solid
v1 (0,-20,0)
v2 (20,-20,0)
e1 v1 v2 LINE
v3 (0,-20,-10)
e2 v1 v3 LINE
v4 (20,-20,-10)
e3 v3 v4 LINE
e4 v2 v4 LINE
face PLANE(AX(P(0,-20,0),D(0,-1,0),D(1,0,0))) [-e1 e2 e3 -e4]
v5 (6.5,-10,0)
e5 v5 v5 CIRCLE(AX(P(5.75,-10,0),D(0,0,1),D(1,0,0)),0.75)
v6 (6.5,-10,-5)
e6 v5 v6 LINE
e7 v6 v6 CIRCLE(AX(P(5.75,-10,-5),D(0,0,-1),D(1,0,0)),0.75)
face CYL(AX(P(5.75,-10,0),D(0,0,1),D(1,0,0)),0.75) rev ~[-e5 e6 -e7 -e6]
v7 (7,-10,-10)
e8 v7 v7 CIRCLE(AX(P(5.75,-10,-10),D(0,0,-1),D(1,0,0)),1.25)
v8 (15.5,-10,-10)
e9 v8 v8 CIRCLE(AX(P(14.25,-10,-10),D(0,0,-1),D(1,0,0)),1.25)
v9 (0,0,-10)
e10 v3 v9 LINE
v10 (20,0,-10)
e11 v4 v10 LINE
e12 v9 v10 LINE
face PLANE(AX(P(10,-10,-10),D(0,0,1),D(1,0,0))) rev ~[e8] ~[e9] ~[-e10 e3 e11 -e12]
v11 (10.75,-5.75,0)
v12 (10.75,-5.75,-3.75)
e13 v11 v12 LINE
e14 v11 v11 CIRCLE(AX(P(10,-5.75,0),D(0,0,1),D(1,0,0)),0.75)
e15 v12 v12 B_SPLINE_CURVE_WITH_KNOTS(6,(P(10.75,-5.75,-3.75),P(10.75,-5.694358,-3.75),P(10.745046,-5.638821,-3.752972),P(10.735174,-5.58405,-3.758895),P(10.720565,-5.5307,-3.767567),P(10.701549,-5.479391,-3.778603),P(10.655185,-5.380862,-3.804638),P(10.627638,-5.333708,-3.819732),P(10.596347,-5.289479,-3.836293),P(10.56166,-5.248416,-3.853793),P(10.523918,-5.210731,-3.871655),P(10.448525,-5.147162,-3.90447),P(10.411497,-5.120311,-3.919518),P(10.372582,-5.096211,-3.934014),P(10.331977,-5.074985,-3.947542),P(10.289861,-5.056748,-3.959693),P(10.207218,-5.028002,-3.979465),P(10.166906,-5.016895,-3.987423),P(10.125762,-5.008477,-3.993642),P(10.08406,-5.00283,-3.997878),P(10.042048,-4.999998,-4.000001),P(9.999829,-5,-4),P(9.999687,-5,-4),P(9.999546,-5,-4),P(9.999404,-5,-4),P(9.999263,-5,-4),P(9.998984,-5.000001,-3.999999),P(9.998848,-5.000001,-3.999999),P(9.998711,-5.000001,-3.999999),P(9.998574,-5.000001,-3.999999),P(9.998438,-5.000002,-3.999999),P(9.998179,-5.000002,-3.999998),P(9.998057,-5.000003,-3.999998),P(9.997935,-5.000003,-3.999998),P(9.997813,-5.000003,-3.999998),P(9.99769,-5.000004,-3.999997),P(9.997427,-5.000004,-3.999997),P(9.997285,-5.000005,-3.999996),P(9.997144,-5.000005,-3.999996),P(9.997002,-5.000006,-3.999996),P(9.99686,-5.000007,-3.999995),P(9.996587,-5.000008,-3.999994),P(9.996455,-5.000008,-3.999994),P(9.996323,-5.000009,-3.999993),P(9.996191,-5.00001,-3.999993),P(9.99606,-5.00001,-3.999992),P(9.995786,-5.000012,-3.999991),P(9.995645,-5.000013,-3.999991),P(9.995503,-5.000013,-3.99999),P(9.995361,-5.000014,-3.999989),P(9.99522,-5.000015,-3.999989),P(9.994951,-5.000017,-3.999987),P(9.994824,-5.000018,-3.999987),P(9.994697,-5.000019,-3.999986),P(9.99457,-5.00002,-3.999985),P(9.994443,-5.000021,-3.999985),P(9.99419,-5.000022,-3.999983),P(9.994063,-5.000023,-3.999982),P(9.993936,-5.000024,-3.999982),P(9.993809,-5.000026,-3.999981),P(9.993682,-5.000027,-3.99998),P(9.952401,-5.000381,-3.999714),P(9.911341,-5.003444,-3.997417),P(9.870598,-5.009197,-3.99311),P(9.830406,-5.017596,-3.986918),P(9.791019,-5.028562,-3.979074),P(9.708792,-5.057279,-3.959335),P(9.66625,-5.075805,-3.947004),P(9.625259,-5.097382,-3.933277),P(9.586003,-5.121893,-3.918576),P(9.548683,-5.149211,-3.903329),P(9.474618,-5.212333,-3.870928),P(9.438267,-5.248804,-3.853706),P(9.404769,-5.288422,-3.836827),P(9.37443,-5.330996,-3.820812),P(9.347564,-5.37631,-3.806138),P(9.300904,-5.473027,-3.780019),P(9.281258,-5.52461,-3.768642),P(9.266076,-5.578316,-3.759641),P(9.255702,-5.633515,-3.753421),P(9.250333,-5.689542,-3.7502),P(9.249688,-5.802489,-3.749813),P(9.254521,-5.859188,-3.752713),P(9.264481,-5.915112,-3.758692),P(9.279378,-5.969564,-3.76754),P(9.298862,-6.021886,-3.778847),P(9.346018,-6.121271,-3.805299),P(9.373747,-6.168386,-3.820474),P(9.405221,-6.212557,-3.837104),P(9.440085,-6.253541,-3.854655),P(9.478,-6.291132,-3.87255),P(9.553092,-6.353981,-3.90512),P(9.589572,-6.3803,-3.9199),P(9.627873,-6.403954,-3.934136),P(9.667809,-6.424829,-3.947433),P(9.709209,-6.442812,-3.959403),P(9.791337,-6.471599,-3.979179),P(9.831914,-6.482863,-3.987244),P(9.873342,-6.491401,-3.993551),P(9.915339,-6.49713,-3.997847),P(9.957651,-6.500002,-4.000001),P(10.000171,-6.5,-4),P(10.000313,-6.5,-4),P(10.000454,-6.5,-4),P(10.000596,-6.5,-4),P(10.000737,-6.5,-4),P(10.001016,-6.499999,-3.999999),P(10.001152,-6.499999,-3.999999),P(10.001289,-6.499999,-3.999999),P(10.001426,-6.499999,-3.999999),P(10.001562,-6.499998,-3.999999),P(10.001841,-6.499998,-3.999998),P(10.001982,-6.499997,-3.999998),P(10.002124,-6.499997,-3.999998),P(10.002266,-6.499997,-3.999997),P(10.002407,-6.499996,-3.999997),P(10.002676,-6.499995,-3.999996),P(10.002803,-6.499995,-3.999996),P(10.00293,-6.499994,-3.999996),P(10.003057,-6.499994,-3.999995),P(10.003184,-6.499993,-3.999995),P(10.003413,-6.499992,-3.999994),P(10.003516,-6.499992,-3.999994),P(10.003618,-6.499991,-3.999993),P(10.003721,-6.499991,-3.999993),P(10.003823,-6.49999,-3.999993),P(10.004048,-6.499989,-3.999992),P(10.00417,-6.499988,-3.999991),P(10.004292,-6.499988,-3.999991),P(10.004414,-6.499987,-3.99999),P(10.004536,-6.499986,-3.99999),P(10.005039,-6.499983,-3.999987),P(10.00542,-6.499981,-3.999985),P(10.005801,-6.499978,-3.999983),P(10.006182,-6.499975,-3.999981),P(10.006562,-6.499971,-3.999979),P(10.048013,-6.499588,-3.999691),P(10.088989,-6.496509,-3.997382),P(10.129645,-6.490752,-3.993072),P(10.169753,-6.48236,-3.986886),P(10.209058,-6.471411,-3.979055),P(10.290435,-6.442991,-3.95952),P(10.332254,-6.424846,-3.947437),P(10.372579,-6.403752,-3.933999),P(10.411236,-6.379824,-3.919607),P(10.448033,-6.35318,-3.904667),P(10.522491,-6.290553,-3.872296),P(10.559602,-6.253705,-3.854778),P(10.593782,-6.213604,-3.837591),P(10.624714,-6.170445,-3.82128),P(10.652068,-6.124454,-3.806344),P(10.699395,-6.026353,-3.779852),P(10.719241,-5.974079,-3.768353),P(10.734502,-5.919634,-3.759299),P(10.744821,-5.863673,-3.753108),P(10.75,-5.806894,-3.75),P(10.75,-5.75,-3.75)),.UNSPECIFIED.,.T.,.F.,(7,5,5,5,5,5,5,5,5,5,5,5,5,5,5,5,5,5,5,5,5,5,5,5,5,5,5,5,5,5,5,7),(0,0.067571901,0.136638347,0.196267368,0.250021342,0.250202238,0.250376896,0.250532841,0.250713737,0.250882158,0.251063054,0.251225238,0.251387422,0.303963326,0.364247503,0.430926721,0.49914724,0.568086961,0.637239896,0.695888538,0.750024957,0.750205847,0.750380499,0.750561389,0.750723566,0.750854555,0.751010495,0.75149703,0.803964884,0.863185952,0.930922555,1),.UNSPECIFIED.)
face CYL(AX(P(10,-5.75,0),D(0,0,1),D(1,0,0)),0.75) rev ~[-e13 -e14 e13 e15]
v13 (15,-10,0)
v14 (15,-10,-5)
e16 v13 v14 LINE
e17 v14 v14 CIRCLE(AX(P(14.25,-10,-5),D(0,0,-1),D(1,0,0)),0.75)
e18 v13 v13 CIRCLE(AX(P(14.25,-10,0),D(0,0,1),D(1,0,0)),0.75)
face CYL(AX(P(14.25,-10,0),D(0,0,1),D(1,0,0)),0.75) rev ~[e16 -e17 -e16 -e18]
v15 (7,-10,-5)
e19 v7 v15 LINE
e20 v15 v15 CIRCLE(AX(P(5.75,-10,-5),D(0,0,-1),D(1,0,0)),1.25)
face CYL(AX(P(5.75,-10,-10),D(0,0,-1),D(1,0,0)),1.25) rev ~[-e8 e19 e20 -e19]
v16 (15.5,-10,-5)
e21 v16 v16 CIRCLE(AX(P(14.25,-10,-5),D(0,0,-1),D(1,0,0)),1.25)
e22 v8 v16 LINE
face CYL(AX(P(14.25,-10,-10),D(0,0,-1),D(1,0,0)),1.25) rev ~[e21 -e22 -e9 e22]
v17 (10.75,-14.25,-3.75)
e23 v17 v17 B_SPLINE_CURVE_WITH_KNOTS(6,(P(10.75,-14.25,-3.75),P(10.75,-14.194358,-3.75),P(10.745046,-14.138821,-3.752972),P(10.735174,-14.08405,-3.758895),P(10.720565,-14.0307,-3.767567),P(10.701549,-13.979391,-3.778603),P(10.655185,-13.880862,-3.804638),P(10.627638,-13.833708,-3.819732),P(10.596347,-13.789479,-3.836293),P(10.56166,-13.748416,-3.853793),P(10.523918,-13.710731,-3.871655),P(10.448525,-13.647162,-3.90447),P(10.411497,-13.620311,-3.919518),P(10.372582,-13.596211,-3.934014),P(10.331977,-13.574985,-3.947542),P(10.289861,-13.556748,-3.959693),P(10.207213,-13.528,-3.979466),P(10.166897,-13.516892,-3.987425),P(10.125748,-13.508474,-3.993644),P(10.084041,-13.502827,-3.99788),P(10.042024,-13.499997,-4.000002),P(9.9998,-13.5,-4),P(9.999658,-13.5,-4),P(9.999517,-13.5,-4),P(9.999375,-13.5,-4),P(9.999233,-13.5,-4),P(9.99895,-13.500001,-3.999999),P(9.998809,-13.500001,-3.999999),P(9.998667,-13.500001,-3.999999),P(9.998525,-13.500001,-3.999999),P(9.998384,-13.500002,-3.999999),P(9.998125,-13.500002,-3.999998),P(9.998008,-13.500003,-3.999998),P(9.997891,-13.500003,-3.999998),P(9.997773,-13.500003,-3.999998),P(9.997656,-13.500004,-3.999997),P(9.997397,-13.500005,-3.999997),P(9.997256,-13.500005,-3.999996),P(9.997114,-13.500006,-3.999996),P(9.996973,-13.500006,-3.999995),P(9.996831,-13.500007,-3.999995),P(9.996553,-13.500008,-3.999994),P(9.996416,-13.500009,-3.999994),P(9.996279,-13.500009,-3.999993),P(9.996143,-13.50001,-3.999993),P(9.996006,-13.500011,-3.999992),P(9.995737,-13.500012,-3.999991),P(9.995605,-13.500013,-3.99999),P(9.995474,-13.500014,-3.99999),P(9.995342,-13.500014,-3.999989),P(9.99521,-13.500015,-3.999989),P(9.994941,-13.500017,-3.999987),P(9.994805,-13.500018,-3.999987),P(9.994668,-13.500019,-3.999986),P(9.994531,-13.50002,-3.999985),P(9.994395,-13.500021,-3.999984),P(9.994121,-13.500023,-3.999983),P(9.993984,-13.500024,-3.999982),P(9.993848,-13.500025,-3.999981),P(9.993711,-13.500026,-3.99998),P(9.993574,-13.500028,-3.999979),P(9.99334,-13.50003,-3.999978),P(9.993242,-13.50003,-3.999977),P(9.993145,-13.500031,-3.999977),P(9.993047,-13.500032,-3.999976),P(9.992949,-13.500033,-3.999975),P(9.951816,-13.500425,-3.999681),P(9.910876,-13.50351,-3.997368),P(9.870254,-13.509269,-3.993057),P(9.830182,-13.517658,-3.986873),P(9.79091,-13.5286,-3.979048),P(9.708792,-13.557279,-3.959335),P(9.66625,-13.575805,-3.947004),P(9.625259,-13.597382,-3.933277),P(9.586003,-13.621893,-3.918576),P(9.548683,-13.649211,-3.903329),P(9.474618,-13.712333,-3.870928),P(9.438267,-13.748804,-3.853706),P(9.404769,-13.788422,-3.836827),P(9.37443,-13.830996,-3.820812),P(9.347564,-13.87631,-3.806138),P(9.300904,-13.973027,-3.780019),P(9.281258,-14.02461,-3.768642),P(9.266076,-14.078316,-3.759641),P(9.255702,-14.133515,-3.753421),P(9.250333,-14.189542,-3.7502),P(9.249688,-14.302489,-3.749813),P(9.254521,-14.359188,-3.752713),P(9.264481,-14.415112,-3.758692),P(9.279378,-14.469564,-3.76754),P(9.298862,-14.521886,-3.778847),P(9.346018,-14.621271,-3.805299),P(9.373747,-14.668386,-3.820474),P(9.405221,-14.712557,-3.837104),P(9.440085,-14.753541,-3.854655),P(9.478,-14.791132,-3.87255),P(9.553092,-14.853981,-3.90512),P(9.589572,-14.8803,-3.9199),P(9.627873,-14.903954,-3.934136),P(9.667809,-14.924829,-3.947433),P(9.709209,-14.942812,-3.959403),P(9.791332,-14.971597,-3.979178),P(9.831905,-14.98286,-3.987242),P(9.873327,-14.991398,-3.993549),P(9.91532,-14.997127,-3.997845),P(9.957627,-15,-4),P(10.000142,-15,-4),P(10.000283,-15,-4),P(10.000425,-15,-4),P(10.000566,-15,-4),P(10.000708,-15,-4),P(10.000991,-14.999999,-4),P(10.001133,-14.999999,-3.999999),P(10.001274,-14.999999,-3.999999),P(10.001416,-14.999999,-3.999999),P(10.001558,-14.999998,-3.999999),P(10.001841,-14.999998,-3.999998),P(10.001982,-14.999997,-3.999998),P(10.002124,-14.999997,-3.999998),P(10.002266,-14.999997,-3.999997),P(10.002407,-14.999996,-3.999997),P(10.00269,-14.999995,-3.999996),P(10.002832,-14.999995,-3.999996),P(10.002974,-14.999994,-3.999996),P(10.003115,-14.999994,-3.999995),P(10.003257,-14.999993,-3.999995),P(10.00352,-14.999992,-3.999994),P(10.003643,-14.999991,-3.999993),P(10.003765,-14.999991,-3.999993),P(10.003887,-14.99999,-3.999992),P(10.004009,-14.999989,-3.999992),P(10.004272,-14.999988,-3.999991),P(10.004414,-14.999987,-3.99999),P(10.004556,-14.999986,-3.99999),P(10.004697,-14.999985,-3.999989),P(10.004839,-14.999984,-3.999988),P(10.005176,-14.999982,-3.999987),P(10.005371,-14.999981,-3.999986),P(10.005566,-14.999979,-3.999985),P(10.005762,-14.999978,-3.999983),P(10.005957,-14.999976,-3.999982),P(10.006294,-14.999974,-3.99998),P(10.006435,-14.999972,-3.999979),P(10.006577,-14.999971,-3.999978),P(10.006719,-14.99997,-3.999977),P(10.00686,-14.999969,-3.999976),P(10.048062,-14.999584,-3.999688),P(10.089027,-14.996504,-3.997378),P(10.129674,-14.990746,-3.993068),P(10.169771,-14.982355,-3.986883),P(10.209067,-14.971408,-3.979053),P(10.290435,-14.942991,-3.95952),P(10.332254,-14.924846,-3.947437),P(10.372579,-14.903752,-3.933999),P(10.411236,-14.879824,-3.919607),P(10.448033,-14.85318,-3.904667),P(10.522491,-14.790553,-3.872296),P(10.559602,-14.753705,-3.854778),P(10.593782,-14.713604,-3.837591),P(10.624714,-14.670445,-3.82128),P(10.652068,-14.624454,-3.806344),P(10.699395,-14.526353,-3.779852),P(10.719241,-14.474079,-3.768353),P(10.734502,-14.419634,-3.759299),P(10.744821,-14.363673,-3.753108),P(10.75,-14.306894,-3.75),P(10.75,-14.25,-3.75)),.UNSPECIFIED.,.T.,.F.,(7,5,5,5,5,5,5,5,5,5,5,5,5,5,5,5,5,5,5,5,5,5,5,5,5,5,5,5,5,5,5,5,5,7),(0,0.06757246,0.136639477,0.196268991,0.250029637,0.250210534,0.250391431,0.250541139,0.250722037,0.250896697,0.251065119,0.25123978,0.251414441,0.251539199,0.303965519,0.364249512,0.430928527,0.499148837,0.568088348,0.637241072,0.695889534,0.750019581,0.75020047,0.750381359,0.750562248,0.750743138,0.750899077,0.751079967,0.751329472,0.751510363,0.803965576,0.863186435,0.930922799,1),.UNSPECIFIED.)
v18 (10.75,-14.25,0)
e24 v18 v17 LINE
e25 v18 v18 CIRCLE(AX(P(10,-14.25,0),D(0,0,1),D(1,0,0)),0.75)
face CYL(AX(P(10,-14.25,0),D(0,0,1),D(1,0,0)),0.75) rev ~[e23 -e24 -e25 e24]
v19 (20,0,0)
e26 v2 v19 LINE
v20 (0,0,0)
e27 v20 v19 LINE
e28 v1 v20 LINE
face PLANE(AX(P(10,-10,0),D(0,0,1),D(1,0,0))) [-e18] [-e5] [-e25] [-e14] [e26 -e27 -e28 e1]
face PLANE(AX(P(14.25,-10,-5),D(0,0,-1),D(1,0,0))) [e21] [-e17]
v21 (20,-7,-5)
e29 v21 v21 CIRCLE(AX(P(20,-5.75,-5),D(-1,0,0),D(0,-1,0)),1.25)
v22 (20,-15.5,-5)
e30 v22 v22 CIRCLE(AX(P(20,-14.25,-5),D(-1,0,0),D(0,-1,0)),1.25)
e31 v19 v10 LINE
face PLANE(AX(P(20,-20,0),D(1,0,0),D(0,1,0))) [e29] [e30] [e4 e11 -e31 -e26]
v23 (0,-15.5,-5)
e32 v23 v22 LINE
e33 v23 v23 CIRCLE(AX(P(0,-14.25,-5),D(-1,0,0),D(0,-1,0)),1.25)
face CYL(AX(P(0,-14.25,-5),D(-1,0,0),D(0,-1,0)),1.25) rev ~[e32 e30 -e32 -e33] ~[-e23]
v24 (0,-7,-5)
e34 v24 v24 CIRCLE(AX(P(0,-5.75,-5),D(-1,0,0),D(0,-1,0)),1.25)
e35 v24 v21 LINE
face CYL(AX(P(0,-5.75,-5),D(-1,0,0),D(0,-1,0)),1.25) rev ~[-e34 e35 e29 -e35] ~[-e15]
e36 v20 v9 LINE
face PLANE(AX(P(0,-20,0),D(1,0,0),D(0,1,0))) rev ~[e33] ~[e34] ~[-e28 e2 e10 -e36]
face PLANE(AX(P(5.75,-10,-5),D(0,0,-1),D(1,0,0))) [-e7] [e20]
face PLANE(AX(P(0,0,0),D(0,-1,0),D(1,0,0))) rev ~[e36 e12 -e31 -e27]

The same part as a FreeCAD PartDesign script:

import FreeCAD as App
import Part
import Sketcher
from FreeCAD import Vector


def add_polygon(sketch, points):
    """Adds a closed chain of lines whose ends are joined by coincident constraints."""
    first, n = sketch.GeometryCount, len(points)
    for a, b in zip(points, points[1:] + points[:1]):
        sketch.addGeometry(Part.LineSegment(App.Vector(*a, 0), App.Vector(*b, 0)), False)
    for i in range(n):
        sketch.addConstraint(Sketcher.Constraint("Coincident", first + i, 2, first + (i + 1) % n, 1))

doc = App.newDocument("Part")
body = doc.addObject("PartDesign::Body", "Body")

# Sketch on XY plane
sketch1 = doc.addObject("Sketcher::SketchObject", "Sketch")
body.addObject(sketch1)
sketch1.AttachmentSupport = (doc.XY_Plane, [""])
sketch1.MapMode = "FlatFace"
add_polygon(sketch1, [(0, 0), (0, -20), (20, -20), (20, 0)])  # lines 0-3
sketch1.addGeometry(Part.Circle(Vector(5.8, -10, 0), Vector(0, 0, 1), 0.8), False)  # 4
sketch1.addGeometry(Part.Circle(Vector(14.2, -10, 0), Vector(0, 0, 1), 0.8), False)  # 5
sketch1.addConstraint([
    Sketcher.Constraint("Vertical", 0),
    Sketcher.Constraint("Horizontal", 1),
    Sketcher.Constraint("Vertical", 2),
    Sketcher.Constraint("Horizontal", 3),
    Sketcher.Constraint("Coincident", 3, 2, -1, 1),
    Sketcher.Constraint("Equal", 4, 5),
    Sketcher.Constraint("Horizontal", 4, 3, 5, 3),
    Sketcher.Constraint("Equal", 3, 0),
    Sketcher.Constraint("Diameter", 4, 1.5),
    Sketcher.Constraint("DistanceX", 1, 1, 1, 2, 20.0),
    Sketcher.Constraint("DistanceY", 4, 3, -1, 1, 10.0),
    Sketcher.Constraint("DistanceX", 4, 3, 5, 3, 8.5),
    Sketcher.Constraint("DistanceX", -1, 1, 4, 3, 5.75),
])
pad1 = doc.addObject("PartDesign::Pad", "Pad")
body.addObject(pad1)
pad1.Profile = sketch1
pad1.Length = 10
pad1.Reversed = True

# Sketch on YZ plane
sketch2 = doc.addObject("Sketcher::SketchObject", "Sketch001")
body.addObject(sketch2)
sketch2.AttachmentSupport = (doc.YZ_Plane, [""])
sketch2.MapMode = "FlatFace"
sketch2.addGeometry([
    Part.Circle(Vector(-5.8, -5, 0), Vector(0, 0, 1), 1.2),
    Part.Circle(Vector(-14.2, -5, 0), Vector(0, 0, 1), 1.2),
], False)
sketch2.addConstraint([
    Sketcher.Constraint("Equal", 0, 1),
    Sketcher.Constraint("Horizontal", 0, 3, 1, 3),
    Sketcher.Constraint("Diameter", 0, 2.5),
    Sketcher.Constraint("DistanceY", 0, 3, -1, 1, 5.0),
    Sketcher.Constraint("DistanceX", 1, 3, 0, 3, 8.5),
    Sketcher.Constraint("DistanceX", 0, 3, -1, 1, 5.75),
])
pocket1 = doc.addObject("PartDesign::Pocket", "Pocket")
body.addObject(pocket1)
pocket1.Profile = sketch2
pocket1.Length = 25
pocket1.Reversed = True

# Sketch on XY plane
sketch3 = doc.addObject("Sketcher::SketchObject", "Sketch002")
body.addObject(sketch3)
sketch3.AttachmentSupport = (doc.XY_Plane, [""])
sketch3.MapMode = "FlatFace"
sketch3.addGeometry([
    Part.Circle(Vector(10, -5.8, 0), Vector(0, 0, 1), 0.8),
    Part.Circle(Vector(10, -14.2, 0), Vector(0, 0, 1), 0.8),
], False)
sketch3.addConstraint([
    Sketcher.Constraint("Equal", 0, 1),
    Sketcher.Constraint("Vertical", 0, 3, 1, 3),
    Sketcher.Constraint("Diameter", 0, 1.5),
    Sketcher.Constraint("DistanceX", -1, 1, 0, 3, 10.0),
    Sketcher.Constraint("DistanceY", 1, 3, 0, 3, 8.5),
    Sketcher.Constraint("DistanceY", 0, 3, -1, 1, 5.75),
])
pocket2 = doc.addObject("PartDesign::Pocket", "Pocket001")
body.addObject(pocket2)
pocket2.Profile = sketch3
pocket2.Length = 6

# Sketch on XY plane
sketch4 = doc.addObject("Sketcher::SketchObject", "Sketch003")
body.addObject(sketch4)
sketch4.AttachmentSupport = (doc.XY_Plane, [""])
sketch4.MapMode = "FlatFace"
sketch4.AttachmentOffset = App.Placement(Vector(0, 0, -10), App.Rotation())
sketch4.addGeometry([
    Part.Circle(Vector(5.8, -10, 0), Vector(0, 0, 1), 1.2),
    Part.Circle(Vector(5.8, -10, 0), Vector(0, 0, 1), 0.8),
    Part.Circle(Vector(14.2, -10, 0), Vector(0, 0, 1), 1.2),
    Part.Circle(Vector(14.2, -10, 0), Vector(0, 0, 1), 0.8),
], False)
sketch4.addConstraint([
    Sketcher.Constraint("Coincident", 1, 3, 0, 3),
    Sketcher.Constraint("Coincident", 3, 3, 2, 3),
    Sketcher.Constraint("Equal", 0, 2),
    Sketcher.Constraint("Equal", 1, 3),
    Sketcher.Constraint("Horizontal", 1, 3, 2, 3),
    Sketcher.Constraint("Diameter", 0, 2.5),
    Sketcher.Constraint("Diameter", 1, 1.5),
    Sketcher.Constraint("DistanceY", 0, 3, -1, 1, 10.0),
    Sketcher.Constraint("DistanceX", 0, 3, 2, 3, 8.5),
    Sketcher.Constraint("DistanceX", -1, 1, 0, 3, 5.75),
])
pocket3 = doc.addObject("PartDesign::Pocket", "Pocket002")
body.addObject(pocket3)
pocket3.Profile = sketch4
pocket3.Length = 5
pocket3.Reversed = True

doc.recompute()
